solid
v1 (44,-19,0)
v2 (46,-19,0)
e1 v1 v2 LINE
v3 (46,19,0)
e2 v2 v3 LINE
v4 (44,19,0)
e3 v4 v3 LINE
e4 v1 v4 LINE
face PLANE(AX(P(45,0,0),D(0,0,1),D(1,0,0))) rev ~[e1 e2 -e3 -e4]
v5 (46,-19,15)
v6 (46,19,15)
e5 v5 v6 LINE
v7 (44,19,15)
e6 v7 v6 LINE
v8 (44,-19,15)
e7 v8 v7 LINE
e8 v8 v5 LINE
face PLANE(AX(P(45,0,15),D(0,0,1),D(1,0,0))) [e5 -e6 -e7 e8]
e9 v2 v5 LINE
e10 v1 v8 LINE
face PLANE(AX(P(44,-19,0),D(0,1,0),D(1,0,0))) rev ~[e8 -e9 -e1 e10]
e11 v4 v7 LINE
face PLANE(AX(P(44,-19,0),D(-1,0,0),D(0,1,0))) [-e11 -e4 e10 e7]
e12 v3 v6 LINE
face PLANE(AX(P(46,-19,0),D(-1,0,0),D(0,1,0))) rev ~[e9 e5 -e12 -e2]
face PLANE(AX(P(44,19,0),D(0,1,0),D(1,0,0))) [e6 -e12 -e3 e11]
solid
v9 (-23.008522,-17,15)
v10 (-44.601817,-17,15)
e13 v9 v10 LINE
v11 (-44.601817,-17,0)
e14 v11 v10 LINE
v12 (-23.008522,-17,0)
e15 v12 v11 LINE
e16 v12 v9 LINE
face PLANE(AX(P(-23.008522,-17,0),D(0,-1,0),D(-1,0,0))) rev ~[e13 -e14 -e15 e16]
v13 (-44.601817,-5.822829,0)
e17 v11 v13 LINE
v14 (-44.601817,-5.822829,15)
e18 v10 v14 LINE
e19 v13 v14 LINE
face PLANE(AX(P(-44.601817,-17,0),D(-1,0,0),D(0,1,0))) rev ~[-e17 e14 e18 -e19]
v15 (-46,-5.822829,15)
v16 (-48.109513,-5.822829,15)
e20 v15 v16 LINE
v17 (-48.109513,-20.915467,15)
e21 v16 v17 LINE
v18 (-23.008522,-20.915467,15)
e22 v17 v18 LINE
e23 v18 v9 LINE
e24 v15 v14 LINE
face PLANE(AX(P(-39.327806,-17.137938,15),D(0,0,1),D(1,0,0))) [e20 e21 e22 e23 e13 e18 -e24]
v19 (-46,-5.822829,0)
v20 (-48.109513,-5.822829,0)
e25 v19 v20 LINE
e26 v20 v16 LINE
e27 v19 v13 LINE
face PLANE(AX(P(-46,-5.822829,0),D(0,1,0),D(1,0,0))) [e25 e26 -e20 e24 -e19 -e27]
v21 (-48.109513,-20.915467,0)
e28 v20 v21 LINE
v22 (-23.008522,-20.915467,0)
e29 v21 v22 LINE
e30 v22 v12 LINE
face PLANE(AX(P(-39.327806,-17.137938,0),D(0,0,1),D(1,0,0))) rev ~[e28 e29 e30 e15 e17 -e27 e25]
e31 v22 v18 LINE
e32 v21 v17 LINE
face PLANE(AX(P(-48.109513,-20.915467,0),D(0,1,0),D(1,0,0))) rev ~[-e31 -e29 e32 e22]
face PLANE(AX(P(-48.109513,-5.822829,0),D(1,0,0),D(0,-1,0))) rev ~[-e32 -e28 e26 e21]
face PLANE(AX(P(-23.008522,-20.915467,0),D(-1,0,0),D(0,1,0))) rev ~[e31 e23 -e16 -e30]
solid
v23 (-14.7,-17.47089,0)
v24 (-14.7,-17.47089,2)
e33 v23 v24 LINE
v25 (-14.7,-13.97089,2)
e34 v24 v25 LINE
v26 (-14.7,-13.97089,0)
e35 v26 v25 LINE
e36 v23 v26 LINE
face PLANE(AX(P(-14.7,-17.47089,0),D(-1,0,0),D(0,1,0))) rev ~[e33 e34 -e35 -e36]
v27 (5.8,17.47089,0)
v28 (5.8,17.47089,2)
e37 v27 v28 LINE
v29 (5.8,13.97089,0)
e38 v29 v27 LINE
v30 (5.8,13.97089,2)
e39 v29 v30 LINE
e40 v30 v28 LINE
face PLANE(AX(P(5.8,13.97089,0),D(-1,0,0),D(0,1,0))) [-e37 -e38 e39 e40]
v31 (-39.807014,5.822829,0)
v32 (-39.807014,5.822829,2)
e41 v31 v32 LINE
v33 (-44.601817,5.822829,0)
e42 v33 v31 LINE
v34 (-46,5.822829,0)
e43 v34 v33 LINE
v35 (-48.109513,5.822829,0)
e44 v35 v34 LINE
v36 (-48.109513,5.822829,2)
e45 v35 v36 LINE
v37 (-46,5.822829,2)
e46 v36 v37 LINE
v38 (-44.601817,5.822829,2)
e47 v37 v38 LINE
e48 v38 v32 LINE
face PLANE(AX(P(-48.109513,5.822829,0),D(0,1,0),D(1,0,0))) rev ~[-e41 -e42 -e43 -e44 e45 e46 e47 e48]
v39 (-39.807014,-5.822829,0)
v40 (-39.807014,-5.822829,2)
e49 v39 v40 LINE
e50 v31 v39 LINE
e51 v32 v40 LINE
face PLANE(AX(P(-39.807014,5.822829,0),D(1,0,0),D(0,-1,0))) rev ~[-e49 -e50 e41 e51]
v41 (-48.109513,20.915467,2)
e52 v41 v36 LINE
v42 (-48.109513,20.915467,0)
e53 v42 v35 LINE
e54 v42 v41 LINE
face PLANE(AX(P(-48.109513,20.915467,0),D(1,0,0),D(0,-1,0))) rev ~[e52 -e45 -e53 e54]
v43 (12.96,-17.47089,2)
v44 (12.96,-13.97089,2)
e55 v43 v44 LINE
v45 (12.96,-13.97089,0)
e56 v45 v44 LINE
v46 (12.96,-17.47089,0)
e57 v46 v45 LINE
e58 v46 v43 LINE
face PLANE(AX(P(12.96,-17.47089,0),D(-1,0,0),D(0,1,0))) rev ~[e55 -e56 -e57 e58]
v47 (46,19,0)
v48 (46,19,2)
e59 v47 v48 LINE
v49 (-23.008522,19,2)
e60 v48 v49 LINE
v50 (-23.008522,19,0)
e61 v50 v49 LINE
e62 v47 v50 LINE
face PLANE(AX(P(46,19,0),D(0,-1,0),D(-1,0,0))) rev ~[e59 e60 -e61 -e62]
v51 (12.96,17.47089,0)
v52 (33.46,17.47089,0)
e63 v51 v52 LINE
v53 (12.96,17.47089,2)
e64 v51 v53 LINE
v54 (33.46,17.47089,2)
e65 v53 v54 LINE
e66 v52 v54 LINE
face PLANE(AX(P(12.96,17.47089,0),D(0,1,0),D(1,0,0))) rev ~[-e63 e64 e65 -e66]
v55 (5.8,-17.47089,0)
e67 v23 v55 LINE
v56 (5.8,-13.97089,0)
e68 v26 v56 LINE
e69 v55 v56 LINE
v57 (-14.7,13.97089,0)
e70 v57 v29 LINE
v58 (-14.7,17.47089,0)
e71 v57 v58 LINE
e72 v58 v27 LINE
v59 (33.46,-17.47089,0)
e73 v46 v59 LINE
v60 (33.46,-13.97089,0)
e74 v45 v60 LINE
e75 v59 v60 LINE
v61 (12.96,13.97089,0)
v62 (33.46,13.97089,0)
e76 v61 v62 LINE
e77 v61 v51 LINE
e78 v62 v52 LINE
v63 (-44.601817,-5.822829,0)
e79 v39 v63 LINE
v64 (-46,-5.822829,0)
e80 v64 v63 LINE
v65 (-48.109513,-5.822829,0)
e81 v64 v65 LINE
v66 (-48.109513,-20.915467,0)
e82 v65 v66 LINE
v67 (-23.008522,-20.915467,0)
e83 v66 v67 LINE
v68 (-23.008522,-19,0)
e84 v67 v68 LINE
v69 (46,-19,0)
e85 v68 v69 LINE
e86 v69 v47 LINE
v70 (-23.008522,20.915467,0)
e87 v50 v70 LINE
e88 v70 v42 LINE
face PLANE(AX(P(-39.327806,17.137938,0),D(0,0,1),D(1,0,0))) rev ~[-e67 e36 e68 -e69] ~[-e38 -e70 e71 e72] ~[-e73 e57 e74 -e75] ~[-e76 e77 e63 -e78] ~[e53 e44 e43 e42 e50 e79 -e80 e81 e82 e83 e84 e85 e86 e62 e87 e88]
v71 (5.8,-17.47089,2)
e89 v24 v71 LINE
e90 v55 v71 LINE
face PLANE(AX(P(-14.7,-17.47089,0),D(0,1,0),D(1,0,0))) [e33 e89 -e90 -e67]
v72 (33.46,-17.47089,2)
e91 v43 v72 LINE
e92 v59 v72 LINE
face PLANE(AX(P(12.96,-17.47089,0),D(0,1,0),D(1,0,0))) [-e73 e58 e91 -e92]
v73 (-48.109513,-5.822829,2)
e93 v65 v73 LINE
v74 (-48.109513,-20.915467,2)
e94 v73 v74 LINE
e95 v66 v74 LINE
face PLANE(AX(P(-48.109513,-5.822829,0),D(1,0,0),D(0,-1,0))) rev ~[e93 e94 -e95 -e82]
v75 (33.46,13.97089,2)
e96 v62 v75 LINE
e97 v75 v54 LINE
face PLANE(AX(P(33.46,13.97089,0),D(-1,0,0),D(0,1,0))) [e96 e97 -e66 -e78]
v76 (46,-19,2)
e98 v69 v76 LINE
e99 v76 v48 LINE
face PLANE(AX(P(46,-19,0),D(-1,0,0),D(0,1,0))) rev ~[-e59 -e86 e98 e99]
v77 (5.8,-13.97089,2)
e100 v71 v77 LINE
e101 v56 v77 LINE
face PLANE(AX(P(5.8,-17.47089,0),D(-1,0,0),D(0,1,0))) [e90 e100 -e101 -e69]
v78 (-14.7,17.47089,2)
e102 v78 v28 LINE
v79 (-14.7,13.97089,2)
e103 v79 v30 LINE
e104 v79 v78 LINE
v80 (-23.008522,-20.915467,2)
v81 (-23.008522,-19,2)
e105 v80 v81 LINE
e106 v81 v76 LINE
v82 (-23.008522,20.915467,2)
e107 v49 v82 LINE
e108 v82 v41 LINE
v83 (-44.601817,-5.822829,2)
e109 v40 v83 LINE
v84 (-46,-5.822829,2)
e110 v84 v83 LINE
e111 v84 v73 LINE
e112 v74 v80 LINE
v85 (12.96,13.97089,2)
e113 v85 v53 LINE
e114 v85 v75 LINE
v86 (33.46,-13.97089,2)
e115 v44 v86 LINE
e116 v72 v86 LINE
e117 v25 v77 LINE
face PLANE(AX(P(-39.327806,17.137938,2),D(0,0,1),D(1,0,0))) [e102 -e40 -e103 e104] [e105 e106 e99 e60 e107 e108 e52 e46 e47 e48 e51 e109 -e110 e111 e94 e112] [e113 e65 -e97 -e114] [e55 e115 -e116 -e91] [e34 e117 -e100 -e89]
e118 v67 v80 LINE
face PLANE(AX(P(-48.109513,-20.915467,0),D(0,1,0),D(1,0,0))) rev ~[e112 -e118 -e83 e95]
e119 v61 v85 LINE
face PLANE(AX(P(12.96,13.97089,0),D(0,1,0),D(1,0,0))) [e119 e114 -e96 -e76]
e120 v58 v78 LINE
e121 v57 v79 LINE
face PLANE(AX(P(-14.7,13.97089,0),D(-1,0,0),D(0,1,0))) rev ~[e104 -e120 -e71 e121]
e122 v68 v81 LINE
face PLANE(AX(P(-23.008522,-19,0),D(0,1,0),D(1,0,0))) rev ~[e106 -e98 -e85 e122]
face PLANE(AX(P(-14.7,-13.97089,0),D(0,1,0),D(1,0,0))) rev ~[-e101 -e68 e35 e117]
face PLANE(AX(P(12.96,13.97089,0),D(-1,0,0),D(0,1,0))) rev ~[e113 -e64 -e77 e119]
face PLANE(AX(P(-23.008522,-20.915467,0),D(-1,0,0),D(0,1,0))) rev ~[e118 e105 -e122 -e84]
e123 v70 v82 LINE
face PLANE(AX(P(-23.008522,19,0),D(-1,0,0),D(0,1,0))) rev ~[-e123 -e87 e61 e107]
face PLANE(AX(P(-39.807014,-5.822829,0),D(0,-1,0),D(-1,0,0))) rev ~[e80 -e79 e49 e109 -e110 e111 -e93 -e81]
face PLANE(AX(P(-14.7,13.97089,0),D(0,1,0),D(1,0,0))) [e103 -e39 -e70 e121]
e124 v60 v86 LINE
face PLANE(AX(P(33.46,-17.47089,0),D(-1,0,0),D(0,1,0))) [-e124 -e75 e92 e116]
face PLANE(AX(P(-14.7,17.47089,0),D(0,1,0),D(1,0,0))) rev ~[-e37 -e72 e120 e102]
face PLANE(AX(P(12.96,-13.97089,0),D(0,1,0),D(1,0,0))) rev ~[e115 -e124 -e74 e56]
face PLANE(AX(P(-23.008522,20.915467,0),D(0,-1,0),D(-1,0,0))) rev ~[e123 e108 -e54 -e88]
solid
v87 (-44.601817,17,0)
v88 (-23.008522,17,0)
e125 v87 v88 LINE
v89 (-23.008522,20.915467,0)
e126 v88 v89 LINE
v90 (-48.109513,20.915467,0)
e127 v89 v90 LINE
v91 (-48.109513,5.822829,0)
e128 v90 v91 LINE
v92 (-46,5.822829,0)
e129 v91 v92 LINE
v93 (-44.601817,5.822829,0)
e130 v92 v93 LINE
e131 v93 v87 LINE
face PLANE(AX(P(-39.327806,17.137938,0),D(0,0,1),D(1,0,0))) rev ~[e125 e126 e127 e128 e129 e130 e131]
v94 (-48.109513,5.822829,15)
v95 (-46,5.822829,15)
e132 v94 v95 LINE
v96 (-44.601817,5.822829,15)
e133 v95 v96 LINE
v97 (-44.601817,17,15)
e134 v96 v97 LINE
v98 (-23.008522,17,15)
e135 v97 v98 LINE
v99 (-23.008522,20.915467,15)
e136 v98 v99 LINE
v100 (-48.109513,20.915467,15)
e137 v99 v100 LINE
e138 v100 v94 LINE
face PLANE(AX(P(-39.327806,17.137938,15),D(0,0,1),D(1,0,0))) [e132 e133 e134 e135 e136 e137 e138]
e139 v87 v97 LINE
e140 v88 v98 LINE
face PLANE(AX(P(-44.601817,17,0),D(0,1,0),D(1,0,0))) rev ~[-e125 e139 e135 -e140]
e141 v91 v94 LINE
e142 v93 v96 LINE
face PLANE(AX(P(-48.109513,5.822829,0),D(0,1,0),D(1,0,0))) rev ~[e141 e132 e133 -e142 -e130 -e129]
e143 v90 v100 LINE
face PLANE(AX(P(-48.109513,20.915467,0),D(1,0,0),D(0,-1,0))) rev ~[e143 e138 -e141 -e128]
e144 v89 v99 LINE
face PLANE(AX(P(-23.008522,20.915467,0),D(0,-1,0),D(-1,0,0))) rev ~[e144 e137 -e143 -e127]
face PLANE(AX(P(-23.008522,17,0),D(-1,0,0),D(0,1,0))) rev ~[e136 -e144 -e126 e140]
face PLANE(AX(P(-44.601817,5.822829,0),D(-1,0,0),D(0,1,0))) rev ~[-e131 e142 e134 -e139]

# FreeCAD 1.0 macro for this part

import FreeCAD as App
import Part
import Sketcher


def add_polygon(sketch, points):
    """Adds a closed chain of lines whose ends are joined by coincident constraints."""
    first, n = sketch.GeometryCount, len(points)
    for a, b in zip(points, points[1:] + points[:1]):
        sketch.addGeometry(Part.LineSegment(App.Vector(*a, 0), App.Vector(*b, 0)), False)
    for i in range(n):
        sketch.addConstraint(Sketcher.Constraint("Coincident", first + i, 2, first + (i + 1) % n, 1))

doc = App.newDocument("Part")
body = doc.addObject("PartDesign::Body", "Body")

# Sketch on XY plane
sketch1 = doc.addObject("Sketcher::SketchObject", "Sketch")
body.addObject(sketch1)
sketch1.AttachmentSupport = (doc.XY_Plane, [""])
sketch1.MapMode = "FlatFace"
add_polygon(sketch1, [(44, 19), (44, -19), (46, -19), (46, 19)])  # lines 0-3
sketch1.addConstraint([
    Sketcher.Constraint("Vertical", 0),
    Sketcher.Constraint("Horizontal", 1),
    Sketcher.Constraint("Vertical", 2),
    Sketcher.Constraint("Horizontal", 3),
    Sketcher.Constraint("DistanceX", 1, 1, 1, 2, 2.0),
    Sketcher.Constraint("DistanceY", 0, 2, 0, 1, 38.0),
    Sketcher.Constraint("DistanceX", -1, 1, 0, 2, 44.0),
    Sketcher.Constraint("DistanceY", 0, 2, -1, 1, 19.0),
])
pad1 = doc.addObject("PartDesign::Pad", "Pad")
body.addObject(pad1)
pad1.Profile = sketch1
pad1.Length = 15
body2 = doc.addObject("PartDesign::Body", "Body001")

# Sketch on XY plane
sketch2 = doc.addObject("Sketcher::SketchObject", "Sketch001")
body2.addObject(sketch2)
sketch2.AttachmentSupport = (doc.getObject("XY_Plane001"), [""])
sketch2.MapMode = "FlatFace"
add_polygon(sketch2, [(-23.008522, 20.915467), (-48.109513, 20.915467), (-48.109513, 5.822829), (-46, 5.822829), (-44.601817, 5.822829), (-44.601817, 17), (-23.008522, 17)])  # lines 0-6
sketch2.addConstraint([
    Sketcher.Constraint("Horizontal", 0),
    Sketcher.Constraint("Vertical", 1),
    Sketcher.Constraint("Horizontal", 2),
    Sketcher.Constraint("Horizontal", 3),
    Sketcher.Constraint("Vertical", 4),
    Sketcher.Constraint("Horizontal", 5),
    Sketcher.Constraint("Vertical", 6),
    Sketcher.Constraint("DistanceX", 2, 2, -1, 1, 46.0),
    Sketcher.Constraint("DistanceY", -1, 1, 4, 2, 17.0),
    Sketcher.Constraint("DistanceX", 0, 2, 0, 1, 25.100991),
    Sketcher.Constraint("DistanceY", 4, 1, 4, 2, 11.177171),
    Sketcher.Constraint("DistanceX", 2, 1, 2, 2, 2.109513),
    Sketcher.Constraint("DistanceX", 3, 1, 3, 2, 1.398183),
    Sketcher.Constraint("DistanceY", 1, 2, 1, 1, 15.092638),
])
pad2 = doc.addObject("PartDesign::Pad", "Pad001")
body2.addObject(pad2)
pad2.Profile = sketch2
pad2.Length = 15
body3 = doc.addObject("PartDesign::Body", "Body002")

# Sketch on XY plane
sketch3 = doc.addObject("Sketcher::SketchObject", "Sketch002")
body3.addObject(sketch3)
sketch3.AttachmentSupport = (doc.getObject("XY_Plane002"), [""])
sketch3.MapMode = "FlatFace"
add_polygon(sketch3, [(-23.008522, -20.915467), (-23.008522, -17), (-44.601817, -17), (-44.601817, -5.822829), (-46, -5.822829), (-48.109513, -5.822829), (-48.109513, -20.915467)])  # lines 0-6
sketch3.addConstraint([
    Sketcher.Constraint("Vertical", 0),
    Sketcher.Constraint("Horizontal", 1),
    Sketcher.Constraint("Vertical", 2),
    Sketcher.Constraint("Horizontal", 3),
    Sketcher.Constraint("Horizontal", 4),
    Sketcher.Constraint("Vertical", 5),
    Sketcher.Constraint("Horizontal", 6),
    Sketcher.Constraint("DistanceY", 0, 2, -1, 1, 17.0),
    Sketcher.Constraint("DistanceX", 3, 2, -1, 1, 46.0),
    Sketcher.Constraint("DistanceX", 6, 1, 6, 2, 25.100991),
    Sketcher.Constraint("DistanceY", 2, 1, 2, 2, 11.177171),
    Sketcher.Constraint("DistanceX", 1, 2, 1, 1, 21.593295),
    Sketcher.Constraint("DistanceX", 3, 2, 3, 1, 1.398183),
    Sketcher.Constraint("DistanceY", 0, 1, 0, 2, 3.915467),
])
pad3 = doc.addObject("PartDesign::Pad", "Pad002")
body3.addObject(pad3)
pad3.Profile = sketch3
pad3.Length = 15
body4 = doc.addObject("PartDesign::Body", "Body003")

# Sketch on XY plane
sketch4 = doc.addObject("Sketcher::SketchObject", "Sketch003")
body4.addObject(sketch4)
sketch4.AttachmentSupport = (doc.getObject("XY_Plane003"), [""])
sketch4.MapMode = "FlatFace"
add_polygon(sketch4, [(-23.008522, 20.915467), (-48.109513, 20.915467), (-48.109513, 5.822829), (-46, 5.822829), (-44.601817, 5.822829), (-39.807014, 5.822829), (-39.807014, -5.822829), (-44.601817, -5.822829), (-46, -5.822829), (-48.109513, -5.822829), (-48.109513, -20.915467), (-23.008522, -20.915467), (-23.008522, -19), (46, -19), (46, 19), (-23.008522, 19)])  # lines 0-15
add_polygon(sketch4, [(5.8, -17.47089), (-14.7, -17.47089), (-14.7, -13.97089), (5.8, -13.97089)])  # lines 16-19
add_polygon(sketch4, [(33.46, -17.47089), (12.96, -17.47089), (12.96, -13.97089), (33.46, -13.97089)])  # lines 20-23
add_polygon(sketch4, [(5.8, 13.97089), (-14.7, 13.97089), (-14.7, 17.47089), (5.8, 17.47089)])  # lines 24-27
add_polygon(sketch4, [(33.46, 13.97089), (12.96, 13.97089), (12.96, 17.47089), (33.46, 17.47089)])  # lines 28-31
sketch4.addConstraint([
    Sketcher.Constraint("Horizontal", 0),
    Sketcher.Constraint("Vertical", 1),
    Sketcher.Constraint("Horizontal", 2),
    Sketcher.Constraint("Horizontal", 3),
    Sketcher.Constraint("Horizontal", 4),
    Sketcher.Constraint("Vertical", 5),
    Sketcher.Constraint("Horizontal", 6),
    Sketcher.Constraint("Horizontal", 7),
    Sketcher.Constraint("Horizontal", 8),
    Sketcher.Constraint("Vertical", 9),
    Sketcher.Constraint("Horizontal", 10),
    Sketcher.Constraint("Vertical", 11),
    Sketcher.Constraint("Horizontal", 12),
    Sketcher.Constraint("Vertical", 13),
    Sketcher.Constraint("Horizontal", 14),
    Sketcher.Constraint("Vertical", 15),
    Sketcher.Constraint("Horizontal", 16),
    Sketcher.Constraint("Vertical", 17),
    Sketcher.Constraint("Horizontal", 18),
    Sketcher.Constraint("Vertical", 19),
    Sketcher.Constraint("Horizontal", 20),
    Sketcher.Constraint("Vertical", 21),
    Sketcher.Constraint("Horizontal", 22),
    Sketcher.Constraint("Vertical", 23),
    Sketcher.Constraint("Horizontal", 24),
    Sketcher.Constraint("Vertical", 25),
    Sketcher.Constraint("Horizontal", 26),
    Sketcher.Constraint("Vertical", 27),
    Sketcher.Constraint("Horizontal", 28),
    Sketcher.Constraint("Vertical", 29),
    Sketcher.Constraint("Horizontal", 30),
    Sketcher.Constraint("Vertical", 31),
    Sketcher.Constraint("Symmetric", 3, 2, 6, 2, -1),
    Sketcher.Constraint("Symmetric", 0, 2, 9, 2, -1),
    Sketcher.Constraint("Symmetric", 11, 2, 14, 2, -1),
    Sketcher.Constraint("Symmetric", 17, 2, 24, 2, -1),
    Sketcher.Constraint("Symmetric", 19, 2, 26, 2, -1),
    Sketcher.Constraint("Symmetric", 21, 2, 28, 2, -1),
    Sketcher.Constraint("Symmetric", 23, 2, 30, 2, -1),
    Sketcher.Constraint("Horizontal", 19, 2, 20, 2),
    Sketcher.Constraint("Horizontal", 18, 2, 21, 2),
    Sketcher.Constraint("Vertical", 2, 2, 7, 2),
    Sketcher.Constraint("Equal", 18, 20),
    Sketcher.Constraint("DistanceY", 13, 1, 13, 2, 38.0),
    Sketcher.Constraint("DistanceX", 16, 2, 16, 1, 20.5),
    Sketcher.Constraint("DistanceY", 17, 1, 17, 2, 3.5),
    Sketcher.Constraint("DistanceX", 2, 2, -1, 1, 46.0),
    Sketcher.Constraint("DistanceX", -1, 1, 12, 2, 46.0),
    Sketcher.Constraint("DistanceX", 16, 2, -1, 1, 14.7),
    Sketcher.Constraint("DistanceX", -1, 1, 20, 2, 12.96),
    Sketcher.Constraint("DistanceX", 0, 2, 0, 1, 25.100991),
    Sketcher.Constraint("DistanceX", 12, 1, 12, 2, 69.008522),
    Sketcher.Constraint("DistanceY", 5, 2, 5, 1, 11.645659),
    Sketcher.Constraint("DistanceX", 1, 2, 4, 2, 8.302499),
    Sketcher.Constraint("DistanceX", 3, 1, 3, 2, 1.398183),
    Sketcher.Constraint("DistanceY", 1, 2, 1, 1, 15.092638),
    Sketcher.Constraint("DistanceY", 16, 2, -1, 1, 17.47089),
])
pad4 = doc.addObject("PartDesign::Pad", "Pad003")
body4.addObject(pad4)
pad4.Profile = sketch4
pad4.Length = 2

doc.recompute()
